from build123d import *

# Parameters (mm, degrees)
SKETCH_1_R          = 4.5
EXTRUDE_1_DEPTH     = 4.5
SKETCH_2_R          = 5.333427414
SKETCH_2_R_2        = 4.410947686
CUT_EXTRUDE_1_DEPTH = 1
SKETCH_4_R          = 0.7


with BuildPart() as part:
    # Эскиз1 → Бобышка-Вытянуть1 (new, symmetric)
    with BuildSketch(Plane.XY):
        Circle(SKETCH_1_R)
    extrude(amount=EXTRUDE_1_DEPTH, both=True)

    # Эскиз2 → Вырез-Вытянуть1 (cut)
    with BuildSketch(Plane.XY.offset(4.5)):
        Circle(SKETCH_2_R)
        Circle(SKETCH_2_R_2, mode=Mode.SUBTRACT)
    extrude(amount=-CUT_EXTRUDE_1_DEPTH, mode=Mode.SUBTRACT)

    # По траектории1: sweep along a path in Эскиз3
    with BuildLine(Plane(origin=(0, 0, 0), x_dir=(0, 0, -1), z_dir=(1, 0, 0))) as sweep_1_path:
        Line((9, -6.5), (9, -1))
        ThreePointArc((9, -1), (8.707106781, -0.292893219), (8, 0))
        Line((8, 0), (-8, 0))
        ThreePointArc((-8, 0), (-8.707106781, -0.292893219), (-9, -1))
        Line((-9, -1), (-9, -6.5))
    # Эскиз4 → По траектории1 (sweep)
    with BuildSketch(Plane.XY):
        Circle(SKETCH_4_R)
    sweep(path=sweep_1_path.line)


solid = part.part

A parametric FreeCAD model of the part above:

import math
import FreeCAD as App
import Part
import Sketcher

V = App.Vector

doc = App.newDocument("Part")
body = doc.addObject("PartDesign::Body", "Body")

sketch1 = doc.addObject("Sketcher::SketchObject", "Sketch")
body.addObject(sketch1)
sketch1.AttachmentSupport = (doc.XY_Plane, [""])
sketch1.MapMode = "FlatFace"
sketch1.addGeometry(Part.Circle(V(0, 0, 0), V(0, 0, 1), 4.5), False)
sketch1.addConstraint([
    Sketcher.Constraint("Coincident", 0, 3, -1, 1),
    Sketcher.Constraint("Diameter", 0, 9.0),
])
pad1 = doc.addObject("PartDesign::Pad", "Pad")
body.addObject(pad1)
pad1.Profile = sketch1
pad1.Length = 9
pad1.Midplane = True

sketch2 = doc.addObject("Sketcher::SketchObject", "Sketch001")
body.addObject(sketch2)
sketch2.AttachmentSupport = (doc.XY_Plane, [""])
sketch2.MapMode = "FlatFace"
sketch2.AttachmentOffset = App.Placement(V(0, 0, 4.5), App.Rotation())
sketch2.addGeometry([
    Part.Circle(V(0, 0, 0), V(0, 0, 1), 5.3),
    Part.Circle(V(0, 0, 0), V(0, 0, 1), 4.4),
], False)
sketch2.addConstraint([
    Sketcher.Constraint("Coincident", 0, 3, -1, 1),
    Sketcher.Constraint("Coincident", 1, 3, -1, 1),
    Sketcher.Constraint("Diameter", 0, 10.666855),
    Sketcher.Constraint("Diameter", 1, 8.821895),
])
pocket1 = doc.addObject("PartDesign::Pocket", "Pocket")
body.addObject(pocket1)
pocket1.Profile = sketch2
pocket1.Length = 1

sketch3 = doc.addObject("Sketcher::SketchObject", "Sketch002")
body.addObject(sketch3)
sketch3.AttachmentSupport = (doc.XY_Plane, [""])
sketch3.MapMode = "FlatFace"
sketch3.addGeometry(Part.Circle(V(0, 0, 0), V(0, 0, 1), 0.7), False)
sketch3.addConstraint([
    Sketcher.Constraint("Coincident", 0, 3, -1, 1),
    Sketcher.Constraint("Diameter", 0, 1.4),
])

sketch4 = doc.addObject("Sketcher::SketchObject", "Sketch003")
body.addObject(sketch4)
sketch4.AttachmentSupport = (doc.YZ_Plane, [""])
sketch4.MapMode = "FlatFace"
sketch4.addGeometry([
    Part.LineSegment(V(-6.5, -9, 0), V(-1, -9, 0)),
    Part.ArcOfCircle(Part.Circle(V(-1, -8, 0), V(0, 0, 1), 1), math.radians(-90), math.radians(0)),
    Part.LineSegment(V(0, -8, 0), V(0, 8, 0)),
    Part.ArcOfCircle(Part.Circle(V(-1, 8, 0), V(0, 0, 1), 1), math.radians(0), math.radians(90)),
    Part.LineSegment(V(-1, 9, 0), V(-6.5, 9, 0)),
], False)
sketch4.addConstraint([
    Sketcher.Constraint("Tangent", 0, 2, 1, 1),
    Sketcher.Constraint("Tangent", 1, 2, 2, 1),
    Sketcher.Constraint("Tangent", 2, 2, 3, 1),
    Sketcher.Constraint("Tangent", 3, 2, 4, 1),
    Sketcher.Constraint("Horizontal", 0),
    Sketcher.Constraint("Vertical", 2),
    Sketcher.Constraint("Horizontal", 4),
    Sketcher.Constraint("Equal", 1, 3),
    Sketcher.Constraint("Symmetric", 1, 2, 2, 2, -1, 1),
    Sketcher.Constraint("Vertical", 0, 1, 4, 2),
    Sketcher.Constraint("Radius", 1, 1.0),
    Sketcher.Constraint("DistanceY", 2, 1, 2, 2, 16.0),
    Sketcher.Constraint("DistanceX", 0, 1, 0, 2, 5.5),
])
doc.recompute()

additivepipe = doc.addObject("PartDesign::AdditivePipe", "AdditivePipe")
body.addObject(additivepipe)
additivepipe.Profile = sketch3
additivepipe.Spine = (sketch4, ["Edge1", "Edge2", "Edge3", "Edge4", "Edge5"])

doc.recompute()
